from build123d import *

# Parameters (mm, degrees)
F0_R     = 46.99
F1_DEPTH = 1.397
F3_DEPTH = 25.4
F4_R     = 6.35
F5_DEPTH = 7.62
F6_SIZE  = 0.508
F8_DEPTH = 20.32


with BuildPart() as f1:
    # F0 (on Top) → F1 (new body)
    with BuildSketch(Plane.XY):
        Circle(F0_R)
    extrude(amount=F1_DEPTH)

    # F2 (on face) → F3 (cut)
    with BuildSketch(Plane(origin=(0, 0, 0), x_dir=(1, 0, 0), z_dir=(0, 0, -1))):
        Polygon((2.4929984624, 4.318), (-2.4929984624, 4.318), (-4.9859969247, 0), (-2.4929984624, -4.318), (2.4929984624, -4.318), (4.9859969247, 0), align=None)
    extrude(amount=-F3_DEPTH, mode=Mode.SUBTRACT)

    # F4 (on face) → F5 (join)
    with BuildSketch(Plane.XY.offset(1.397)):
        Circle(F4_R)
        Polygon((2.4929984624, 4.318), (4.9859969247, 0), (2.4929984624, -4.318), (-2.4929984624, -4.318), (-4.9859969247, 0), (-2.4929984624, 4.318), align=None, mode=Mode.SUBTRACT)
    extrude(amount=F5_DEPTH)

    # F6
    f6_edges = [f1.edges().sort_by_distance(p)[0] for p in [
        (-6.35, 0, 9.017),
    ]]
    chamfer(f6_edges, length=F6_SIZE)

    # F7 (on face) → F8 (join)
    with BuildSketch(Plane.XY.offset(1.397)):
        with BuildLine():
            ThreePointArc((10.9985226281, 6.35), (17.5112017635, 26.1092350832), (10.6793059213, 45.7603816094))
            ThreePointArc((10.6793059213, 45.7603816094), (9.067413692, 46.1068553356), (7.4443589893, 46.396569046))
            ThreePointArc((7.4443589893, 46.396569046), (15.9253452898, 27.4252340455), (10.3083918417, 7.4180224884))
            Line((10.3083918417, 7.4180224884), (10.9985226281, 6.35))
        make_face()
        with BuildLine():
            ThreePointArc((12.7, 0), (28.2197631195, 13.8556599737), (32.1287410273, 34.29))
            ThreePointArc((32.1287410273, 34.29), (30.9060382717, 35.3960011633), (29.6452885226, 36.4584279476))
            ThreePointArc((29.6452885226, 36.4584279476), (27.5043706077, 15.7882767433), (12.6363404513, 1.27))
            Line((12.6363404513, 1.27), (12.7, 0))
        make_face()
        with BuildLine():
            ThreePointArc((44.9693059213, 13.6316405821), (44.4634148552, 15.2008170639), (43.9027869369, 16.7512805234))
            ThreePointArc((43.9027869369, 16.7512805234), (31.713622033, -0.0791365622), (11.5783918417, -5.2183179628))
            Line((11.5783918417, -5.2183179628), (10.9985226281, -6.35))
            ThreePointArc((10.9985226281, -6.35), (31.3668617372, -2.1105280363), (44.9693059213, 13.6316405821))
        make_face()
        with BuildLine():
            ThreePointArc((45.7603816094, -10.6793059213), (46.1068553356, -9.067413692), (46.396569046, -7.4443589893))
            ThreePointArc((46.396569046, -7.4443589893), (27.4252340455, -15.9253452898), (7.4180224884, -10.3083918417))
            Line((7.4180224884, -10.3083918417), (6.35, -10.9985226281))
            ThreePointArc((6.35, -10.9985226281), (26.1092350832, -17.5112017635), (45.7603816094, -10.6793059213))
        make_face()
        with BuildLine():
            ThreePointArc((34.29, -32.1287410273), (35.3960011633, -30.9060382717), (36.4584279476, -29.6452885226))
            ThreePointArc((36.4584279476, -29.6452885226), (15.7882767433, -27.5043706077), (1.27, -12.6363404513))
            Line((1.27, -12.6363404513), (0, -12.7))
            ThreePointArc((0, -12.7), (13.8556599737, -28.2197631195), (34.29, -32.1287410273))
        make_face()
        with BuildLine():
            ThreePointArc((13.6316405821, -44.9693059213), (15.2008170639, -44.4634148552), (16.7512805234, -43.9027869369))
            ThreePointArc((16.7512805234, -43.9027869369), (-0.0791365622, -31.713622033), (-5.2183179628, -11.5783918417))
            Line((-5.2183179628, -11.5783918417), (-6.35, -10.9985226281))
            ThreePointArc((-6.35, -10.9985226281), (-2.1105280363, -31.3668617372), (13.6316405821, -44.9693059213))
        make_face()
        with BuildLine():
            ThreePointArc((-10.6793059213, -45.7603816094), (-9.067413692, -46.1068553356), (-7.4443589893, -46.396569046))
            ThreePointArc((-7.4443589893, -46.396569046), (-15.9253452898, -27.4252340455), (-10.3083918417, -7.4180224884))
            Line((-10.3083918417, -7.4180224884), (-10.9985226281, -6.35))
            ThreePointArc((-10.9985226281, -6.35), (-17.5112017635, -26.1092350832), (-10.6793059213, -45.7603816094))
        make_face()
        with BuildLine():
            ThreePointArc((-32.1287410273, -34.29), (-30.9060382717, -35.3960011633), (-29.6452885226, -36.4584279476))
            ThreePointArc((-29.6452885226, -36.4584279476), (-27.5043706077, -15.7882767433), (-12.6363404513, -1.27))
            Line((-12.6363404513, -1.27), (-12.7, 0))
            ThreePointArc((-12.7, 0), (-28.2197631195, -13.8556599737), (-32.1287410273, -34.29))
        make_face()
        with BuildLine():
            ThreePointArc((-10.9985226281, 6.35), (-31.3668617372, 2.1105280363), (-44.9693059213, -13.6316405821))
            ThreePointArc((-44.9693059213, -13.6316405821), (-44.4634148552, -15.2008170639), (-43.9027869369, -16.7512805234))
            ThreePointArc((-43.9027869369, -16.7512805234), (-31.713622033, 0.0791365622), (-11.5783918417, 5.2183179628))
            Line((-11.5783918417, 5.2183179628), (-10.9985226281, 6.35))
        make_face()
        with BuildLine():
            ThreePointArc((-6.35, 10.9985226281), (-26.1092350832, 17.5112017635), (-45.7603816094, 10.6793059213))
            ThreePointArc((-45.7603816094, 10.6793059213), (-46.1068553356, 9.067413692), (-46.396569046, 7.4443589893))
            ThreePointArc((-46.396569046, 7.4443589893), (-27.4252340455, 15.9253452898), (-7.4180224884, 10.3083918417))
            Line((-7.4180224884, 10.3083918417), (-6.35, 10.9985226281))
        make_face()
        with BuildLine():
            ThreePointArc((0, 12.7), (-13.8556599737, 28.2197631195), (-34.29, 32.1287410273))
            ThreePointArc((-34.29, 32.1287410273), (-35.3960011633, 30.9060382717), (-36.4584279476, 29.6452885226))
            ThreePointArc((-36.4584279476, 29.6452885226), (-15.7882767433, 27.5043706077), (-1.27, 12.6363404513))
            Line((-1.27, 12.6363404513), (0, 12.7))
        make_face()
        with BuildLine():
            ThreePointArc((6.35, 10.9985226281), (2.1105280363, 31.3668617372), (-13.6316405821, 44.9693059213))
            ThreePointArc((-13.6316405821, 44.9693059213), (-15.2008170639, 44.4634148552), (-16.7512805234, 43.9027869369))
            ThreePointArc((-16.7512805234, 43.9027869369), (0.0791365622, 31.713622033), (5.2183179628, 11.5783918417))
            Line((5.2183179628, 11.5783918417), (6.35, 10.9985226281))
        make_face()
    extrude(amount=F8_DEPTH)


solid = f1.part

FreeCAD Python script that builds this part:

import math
import FreeCAD as App
import Part
import Sketcher
Q = App.Units.Quantity


def edges_at(feature, points):
    """Names of the edges that pass closest to the given points."""
    edges = feature.Shape.Edges
    near = lambda p: min(range(len(edges)), key=lambda i: edges[i].distToShape(Part.Vertex(*p))[0])
    return sorted({f"Edge{near(p) + 1}" for p in points})


def add_polygon(sketch, points):
    """Adds a closed chain of lines whose ends are joined by coincident constraints."""
    first, n = sketch.GeometryCount, len(points)
    for a, b in zip(points, points[1:] + points[:1]):
        sketch.addGeometry(Part.LineSegment(App.Vector(*a, 0), App.Vector(*b, 0)), False)
    for i in range(n):
        sketch.addConstraint(Sketcher.Constraint("Coincident", first + i, 2, first + (i + 1) % n, 1))

doc = App.newDocument("Part")
body = doc.addObject("PartDesign::Body", "Body")

sketch1 = body.newObject("Sketcher::SketchObject", "Sketch")
sketch1.AttachmentSupport = (doc.getObject("XY_Plane"), [""])
sketch1.MapMode = "FlatFace"
sketch1.addGeometry(Part.Circle(App.Vector(0, 0, 0), App.Vector(0, 0, 1), 46.99), False)
sketch1.addConstraint(Sketcher.Constraint("Coincident", 0, 3, -1, 1))
sketch1.addConstraint(Sketcher.Constraint("Diameter", 0, Q("3.7 in")))
pad1 = body.newObject("PartDesign::Pad", "Pad")
pad1.Profile = sketch1
pad1.Length = Q("0.055 in")

sketch2 = body.newObject("Sketcher::SketchObject", "Sketch001")
sketch2.AttachmentSupport = (doc.getObject("XY_Plane"), [""])
sketch2.MapMode = "FlatFace"
add_polygon(sketch2, [(2.492998, -4.318), (-2.492998, -4.318), (-4.985997, 0), (-2.492998, 4.318), (2.492998, 4.318), (4.985997, 0)])
sketch2.addConstraint(Sketcher.Constraint("Horizontal", 0))
sketch2.addConstraint(Sketcher.Constraint("Horizontal", 3))
sketch2.addConstraint(Sketcher.Constraint("Symmetric", 0, 2, 3, 2, -1, 1))
sketch2.addConstraint(Sketcher.Constraint("Symmetric", 1, 2, 4, 2, -1, 1))
sketch2.addConstraint(Sketcher.Constraint("PointOnObject", 1, 2, -1))
sketch2.addConstraint(Sketcher.Constraint("Parallel", 2, 5))
sketch2.addConstraint(Sketcher.Constraint("Vertical", 0, 2, 2, 2))
sketch2.addConstraint(Sketcher.Constraint("Angle", 1, Q("120 deg")))
sketch2.addConstraint(Sketcher.Constraint("DistanceY", 0, 2, -1, 1, Q("0.17 in")))
sketch2.addConstraint(Sketcher.Constraint("DistanceX", 0, 2, -1, 1, 2.492998))
pocket1 = body.newObject("PartDesign::Pocket", "Pocket")
pocket1.Profile = sketch2
pocket1.Length = Q("1 in")
pocket1.Reversed = True

sketch3 = body.newObject("Sketcher::SketchObject", "Sketch002")
sketch3.AttachmentSupport = (doc.getObject("XY_Plane"), [""])
sketch3.MapMode = "FlatFace"
sketch3.AttachmentOffset = App.Placement(App.Vector(0, 0, 0.055 * 25.4), App.Rotation())
sketch3.addGeometry(Part.Circle(App.Vector(0, 0, 0), App.Vector(0, 0, 1), 6.35), False)
add_polygon(sketch3, [(-2.492998, 4.318), (2.492998, 4.318), (4.985997, 0), (2.492998, -4.318), (-2.492998, -4.318), (-4.985997, 0)])
sketch3.addConstraint(Sketcher.Constraint("Horizontal", 1))
sketch3.addConstraint(Sketcher.Constraint("Horizontal", 4))
sketch3.addConstraint(Sketcher.Constraint("Coincident", 0, 3, -1, 1))
sketch3.addConstraint(Sketcher.Constraint("Symmetric", 1, 2, 4, 2, -1, 1))
sketch3.addConstraint(Sketcher.Constraint("Symmetric", 2, 2, 5, 2, -1, 1))
sketch3.addConstraint(Sketcher.Constraint("PointOnObject", 2, 2, -1))
sketch3.addConstraint(Sketcher.Constraint("Parallel", 3, 6))
sketch3.addConstraint(Sketcher.Constraint("Vertical", 1, 2, 3, 2))
sketch3.addConstraint(Sketcher.Constraint("Diameter", 0, Q("0.5 in")))
sketch3.addConstraint(Sketcher.Constraint("Angle", 2, Q("-60 deg")))
sketch3.addConstraint(Sketcher.Constraint("DistanceY", -1, 1, 1, 2, Q("0.17 in")))
sketch3.addConstraint(Sketcher.Constraint("DistanceX", -1, 1, 1, 2, 2.492998))
pad2 = body.newObject("PartDesign::Pad", "Pad001")
pad2.Profile = sketch3
pad2.Length = Q("0.3 in")
doc.recompute()

chamfer = body.newObject("PartDesign::Chamfer", "Chamfer")
chamfer.Base = (pad2, edges_at(pad2, [(-6.35, 0, 9.017)]))
chamfer.Size = Q("0.02 in")

sketch4 = body.newObject("Sketcher::SketchObject", "Sketch003")
sketch4.AttachmentSupport = (doc.getObject("XY_Plane"), [""])
sketch4.MapMode = "FlatFace"
sketch4.AttachmentOffset = App.Placement(App.Vector(0, 0, 0.055 * 25.4), App.Rotation())
sketch4.addGeometry(Part.ArcOfCircle(Part.Circle(App.Vector(-14.9225, 25.846528, 0), App.Vector(0, 0, 1), 32.434766), math.radians(-36.948699), math.radians(37.876849)), False)
sketch4.addGeometry(Part.ArcOfCircle(Part.Circle(App.Vector(0, 0, 0), App.Vector(0, 0, 1), 46.99), math.radians(76.863741), math.radians(80.88455)), False)
sketch4.addGeometry(Part.ArcOfCircle(Part.Circle(App.Vector(-14.5415, 25.186617, 0), App.Vector(0, 0, 1), 30.548978), math.radians(-35.566174), math.radians(43.970933)), False)
sketch4.addGeometry(Part.LineSegment(App.Vector(10.308392, 7.418022, 0), App.Vector(10.998523, 6.35, 0)), False)
sketch4.addGeometry(Part.ArcOfCircle(Part.Circle(App.Vector(0, 29.845, 0), App.Vector(0, 0, 1), 32.434766), math.radians(-66.948699), math.radians(7.876849)), False)
sketch4.addGeometry(Part.ArcOfCircle(Part.Circle(App.Vector(0, 0, 0), App.Vector(0, 0, 1), 46.99), math.radians(46.863741), math.radians(50.88455)), False)
sketch4.addGeometry(Part.ArcOfCircle(Part.Circle(App.Vector(0, 29.083, 0), App.Vector(0, 0, 1), 30.548978), math.radians(-65.566174), math.radians(13.970933)), False)
sketch4.addGeometry(Part.LineSegment(App.Vector(12.63634, 1.27, 0), App.Vector(12.7, 0, 0)), False)
sketch4.addGeometry(Part.ArcOfCircle(Part.Circle(App.Vector(0, 0, 0), App.Vector(0, 0, 1), 46.99), math.radians(16.863741), math.radians(20.88455)), False)
sketch4.addGeometry(Part.ArcOfCircle(Part.Circle(App.Vector(14.5415, 25.186617, 0), App.Vector(0, 0, 1), 30.548978), math.radians(-95.566174), math.radians(-16.029067)), False)
sketch4.addGeometry(Part.LineSegment(App.Vector(11.578392, -5.218318, 0), App.Vector(10.998523, -6.35, 0)), False)
sketch4.addGeometry(Part.ArcOfCircle(Part.Circle(App.Vector(14.9225, 25.846528, 0), App.Vector(0, 0, 1), 32.434766), math.radians(-96.948699), math.radians(-22.123151)), False)
sketch4.addGeometry(Part.ArcOfCircle(Part.Circle(App.Vector(0, 0, 0), App.Vector(0, 0, 1), 46.99), math.radians(-13.136259), math.radians(-9.11545)), False)
sketch4.addGeometry(Part.ArcOfCircle(Part.Circle(App.Vector(25.186617, 14.5415, 0), App.Vector(0, 0, 1), 30.548978), math.radians(-125.566174), math.radians(-46.029067)), False)
sketch4.addGeometry(Part.LineSegment(App.Vector(7.418022, -10.308392, 0), App.Vector(6.35, -10.998523, 0)), False)
sketch4.addGeometry(Part.ArcOfCircle(Part.Circle(App.Vector(25.846528, 14.9225, 0), App.Vector(0, 0, 1), 32.434766), math.radians(-126.948699), math.radians(-52.123151)), False)
sketch4.addGeometry(Part.ArcOfCircle(Part.Circle(App.Vector(0, 0, 0), App.Vector(0, 0, 1), 46.99), math.radians(-43.136259), math.radians(-39.11545)), False)
sketch4.addGeometry(Part.ArcOfCircle(Part.Circle(App.Vector(29.083, 0, 0), App.Vector(0, 0, 1), 30.548978), math.radians(-155.566174), math.radians(-76.029067)), False)
sketch4.addGeometry(Part.LineSegment(App.Vector(1.27, -12.63634, 0), App.Vector(0, -12.7, 0)), False)
sketch4.addGeometry(Part.ArcOfCircle(Part.Circle(App.Vector(29.845, 0, 0), App.Vector(0, 0, 1), 32.434766), math.radians(-156.948699), math.radians(-82.123151)), False)
sketch4.addGeometry(Part.ArcOfCircle(Part.Circle(App.Vector(0, 0, 0), App.Vector(0, 0, 1), 46.99), math.radians(-73.136259), math.radians(-69.11545)), False)
sketch4.addGeometry(Part.ArcOfCircle(Part.Circle(App.Vector(25.186617, -14.5415, 0), App.Vector(0, 0, 1), 30.548978), math.radians(174.433826), math.radians(253.970933)), False)
sketch4.addGeometry(Part.LineSegment(App.Vector(-5.218318, -11.578392, 0), App.Vector(-6.35, -10.998523, 0)), False)
sketch4.addGeometry(Part.ArcOfCircle(Part.Circle(App.Vector(25.846528, -14.9225, 0), App.Vector(0, 0, 1), 32.434766), math.radians(173.051301), math.radians(247.876849)), False)
sketch4.addGeometry(Part.ArcOfCircle(Part.Circle(App.Vector(0, 0, 0), App.Vector(0, 0, 1), 46.99), math.radians(-103.136259), math.radians(-99.11545)), False)
sketch4.addGeometry(Part.ArcOfCircle(Part.Circle(App.Vector(14.5415, -25.186617, 0), App.Vector(0, 0, 1), 30.548978), math.radians(144.433826), math.radians(223.970933)), False)
sketch4.addGeometry(Part.LineSegment(App.Vector(-10.308392, -7.418022, 0), App.Vector(-10.998523, -6.35, 0)), False)
sketch4.addGeometry(Part.ArcOfCircle(Part.Circle(App.Vector(14.9225, -25.846528, 0), App.Vector(0, 0, 1), 32.434766), math.radians(143.051301), math.radians(217.876849)), False)
sketch4.addGeometry(Part.ArcOfCircle(Part.Circle(App.Vector(0, 0, 0), App.Vector(0, 0, 1), 46.99), math.radians(-133.136259), math.radians(-129.11545)), False)
sketch4.addGeometry(Part.ArcOfCircle(Part.Circle(App.Vector(0, -29.083, 0), App.Vector(0, 0, 1), 30.548978), math.radians(114.433826), math.radians(193.970933)), False)
sketch4.addGeometry(Part.LineSegment(App.Vector(-12.63634, -1.27, 0), App.Vector(-12.7, 0, 0)), False)
sketch4.addGeometry(Part.ArcOfCircle(Part.Circle(App.Vector(0, -29.845, 0), App.Vector(0, 0, 1), 32.434766), math.radians(113.051301), math.radians(187.876849)), False)
sketch4.addGeometry(Part.ArcOfCircle(Part.Circle(App.Vector(-14.9225, -25.846528, 0), App.Vector(0, 0, 1), 32.434766), math.radians(83.051301), math.radians(157.876849)), False)
sketch4.addGeometry(Part.ArcOfCircle(Part.Circle(App.Vector(0, 0, 0), App.Vector(0, 0, 1), 46.99), math.radians(-163.136259), math.radians(-159.11545)), False)
sketch4.addGeometry(Part.ArcOfCircle(Part.Circle(App.Vector(-14.5415, -25.186617, 0), App.Vector(0, 0, 1), 30.548978), math.radians(84.433826), math.radians(163.970933)), False)
sketch4.addGeometry(Part.LineSegment(App.Vector(-11.578392, 5.218318, 0), App.Vector(-10.998523, 6.35, 0)), False)
sketch4.addGeometry(Part.ArcOfCircle(Part.Circle(App.Vector(-25.846528, -14.9225, 0), App.Vector(0, 0, 1), 32.434766), math.radians(53.051301), math.radians(127.876849)), False)
sketch4.addGeometry(Part.ArcOfCircle(Part.Circle(App.Vector(0, 0, 0), App.Vector(0, 0, 1), 46.99), math.radians(166.863741), math.radians(170.88455)), False)
sketch4.addGeometry(Part.ArcOfCircle(Part.Circle(App.Vector(-25.186617, -14.5415, 0), App.Vector(0, 0, 1), 30.548978), math.radians(54.433826), math.radians(133.970933)), False)
sketch4.addGeometry(Part.LineSegment(App.Vector(-7.418022, 10.308392, 0), App.Vector(-6.35, 10.998523, 0)), False)
sketch4.addGeometry(Part.ArcOfCircle(Part.Circle(App.Vector(-29.845, 0, 0), App.Vector(0, 0, 1), 32.434766), math.radians(23.051301), math.radians(97.876849)), False)
sketch4.addGeometry(Part.ArcOfCircle(Part.Circle(App.Vector(0, 0, 0), App.Vector(0, 0, 1), 46.99), math.radians(136.863741), math.radians(140.88455)), False)
sketch4.addGeometry(Part.ArcOfCircle(Part.Circle(App.Vector(-29.083, 0, 0), App.Vector(0, 0, 1), 30.548978), math.radians(24.433826), math.radians(103.970933)), False)
sketch4.addGeometry(Part.LineSegment(App.Vector(-1.27, 12.63634, 0), App.Vector(0, 12.7, 0)), False)
sketch4.addGeometry(Part.ArcOfCircle(Part.Circle(App.Vector(-25.846528, 14.9225, 0), App.Vector(0, 0, 1), 32.434766), math.radians(-6.948699), math.radians(67.876849)), False)
sketch4.addGeometry(Part.ArcOfCircle(Part.Circle(App.Vector(0, 0, 0), App.Vector(0, 0, 1), 46.99), math.radians(106.863741), math.radians(110.88455)), False)
sketch4.addGeometry(Part.ArcOfCircle(Part.Circle(App.Vector(-25.186617, 14.5415, 0), App.Vector(0, 0, 1), 30.548978), math.radians(-5.566174), math.radians(73.970933)), False)
sketch4.addGeometry(Part.LineSegment(App.Vector(5.218318, 11.578392, 0), App.Vector(6.35, 10.998523, 0)), False)
sketch4.addConstraint(Sketcher.Constraint("Coincident", 0, 2, 1, 1))
sketch4.addConstraint(Sketcher.Constraint("Coincident", 1, 2, 2, 2))
sketch4.addConstraint(Sketcher.Constraint("Coincident", 2, 1, 3, 1))
sketch4.addConstraint(Sketcher.Constraint("Coincident", 3, 2, 0, 1))
sketch4.addConstraint(Sketcher.Constraint("Coincident", 4, 2, 5, 1))
sketch4.addConstraint(Sketcher.Constraint("Coincident", 5, 2, 6, 2))
sketch4.addConstraint(Sketcher.Constraint("Coincident", 6, 1, 7, 1))
sketch4.addConstraint(Sketcher.Constraint("Coincident", 7, 2, 4, 1))
sketch4.addConstraint(Sketcher.Constraint("Coincident", 8, 2, 9, 2))
sketch4.addConstraint(Sketcher.Constraint("Coincident", 9, 1, 10, 1))
sketch4.addConstraint(Sketcher.Constraint("Coincident", 10, 2, 11, 1))
sketch4.addConstraint(Sketcher.Constraint("Coincident", 11, 2, 8, 1))
sketch4.addConstraint(Sketcher.Constraint("Coincident", 12, 2, 13, 2))
sketch4.addConstraint(Sketcher.Constraint("Coincident", 13, 1, 14, 1))
sketch4.addConstraint(Sketcher.Constraint("Coincident", 14, 2, 15, 1))
sketch4.addConstraint(Sketcher.Constraint("Coincident", 15, 2, 12, 1))
sketch4.addConstraint(Sketcher.Constraint("Coincident", 16, 2, 17, 2))
sketch4.addConstraint(Sketcher.Constraint("Coincident", 17, 1, 18, 1))
sketch4.addConstraint(Sketcher.Constraint("Coincident", 18, 2, 19, 1))
sketch4.addConstraint(Sketcher.Constraint("Coincident", 19, 2, 16, 1))
sketch4.addConstraint(Sketcher.Constraint("Coincident", 20, 2, 21, 2))
sketch4.addConstraint(Sketcher.Constraint("Coincident", 21, 1, 22, 1))
sketch4.addConstraint(Sketcher.Constraint("Coincident", 22, 2, 23, 1))
sketch4.addConstraint(Sketcher.Constraint("Coincident", 23, 2, 20, 1))
sketch4.addConstraint(Sketcher.Constraint("Coincident", 24, 2, 25, 2))
sketch4.addConstraint(Sketcher.Constraint("Coincident", 25, 1, 26, 1))
sketch4.addConstraint(Sketcher.Constraint("Coincident", 26, 2, 27, 1))
sketch4.addConstraint(Sketcher.Constraint("Coincident", 27, 2, 24, 1))
sketch4.addConstraint(Sketcher.Constraint("Coincident", 28, 2, 29, 2))
sketch4.addConstraint(Sketcher.Constraint("Coincident", 29, 1, 30, 1))
sketch4.addConstraint(Sketcher.Constraint("Coincident", 30, 2, 31, 1))
sketch4.addConstraint(Sketcher.Constraint("Coincident", 31, 2, 28, 1))
sketch4.addConstraint(Sketcher.Constraint("Coincident", 32, 2, 33, 1))
sketch4.addConstraint(Sketcher.Constraint("Coincident", 33, 2, 34, 2))
sketch4.addConstraint(Sketcher.Constraint("Coincident", 34, 1, 35, 1))
sketch4.addConstraint(Sketcher.Constraint("Coincident", 35, 2, 32, 1))
sketch4.addConstraint(Sketcher.Constraint("Coincident", 36, 2, 37, 1))
sketch4.addConstraint(Sketcher.Constraint("Coincident", 37, 2, 38, 2))
sketch4.addConstraint(Sketcher.Constraint("Coincident", 38, 1, 39, 1))
sketch4.addConstraint(Sketcher.Constraint("Coincident", 39, 2, 36, 1))
sketch4.addConstraint(Sketcher.Constraint("Coincident", 40, 2, 41, 1))
sketch4.addConstraint(Sketcher.Constraint("Coincident", 41, 2, 42, 2))
sketch4.addConstraint(Sketcher.Constraint("Coincident", 42, 1, 43, 1))
sketch4.addConstraint(Sketcher.Constraint("Coincident", 43, 2, 40, 1))
sketch4.addConstraint(Sketcher.Constraint("Coincident", 44, 2, 45, 1))
sketch4.addConstraint(Sketcher.Constraint("Coincident", 45, 2, 46, 2))
sketch4.addConstraint(Sketcher.Constraint("Coincident", 46, 1, 47, 1))
sketch4.addConstraint(Sketcher.Constraint("Coincident", 47, 2, 44, 1))
sketch4.addConstraint(Sketcher.Constraint("Coincident", 1, 3, -1, 1))
sketch4.addConstraint(Sketcher.Constraint("Coincident", 5, 3, -1, 1))
sketch4.addConstraint(Sketcher.Constraint("Coincident", 8, 3, -1, 1))
sketch4.addConstraint(Sketcher.Constraint("Coincident", 12, 3, -1, 1))
sketch4.addConstraint(Sketcher.Constraint("Coincident", 16, 3, -1, 1))
sketch4.addConstraint(Sketcher.Constraint("Coincident", 20, 3, -1, 1))
sketch4.addConstraint(Sketcher.Constraint("Coincident", 24, 3, -1, 1))
sketch4.addConstraint(Sketcher.Constraint("Coincident", 28, 3, -1, 1))
sketch4.addConstraint(Sketcher.Constraint("Coincident", 33, 3, -1, 1))
sketch4.addConstraint(Sketcher.Constraint("Coincident", 37, 3, -1, 1))
sketch4.addConstraint(Sketcher.Constraint("Coincident", 41, 3, -1, 1))
sketch4.addConstraint(Sketcher.Constraint("Coincident", 45, 3, -1, 1))
sketch4.addConstraint(Sketcher.Constraint("Equal", 0, 4))
sketch4.addConstraint(Sketcher.Constraint("Equal", 1, 5))
sketch4.addConstraint(Sketcher.Constraint("Equal", 2, 6))
sketch4.addConstraint(Sketcher.Constraint("Equal", 5, 8))
sketch4.addConstraint(Sketcher.Constraint("Equal", 6, 9))
sketch4.addConstraint(Sketcher.Constraint("Equal", 4, 11))
sketch4.addConstraint(Sketcher.Constraint("Equal", 8, 12))
sketch4.addConstraint(Sketcher.Constraint("Equal", 9, 13))
sketch4.addConstraint(Sketcher.Constraint("Equal", 11, 15))
sketch4.addConstraint(Sketcher.Constraint("Equal", 12, 16))
sketch4.addConstraint(Sketcher.Constraint("Equal", 13, 17))
sketch4.addConstraint(Sketcher.Constraint("Equal", 15, 19))
sketch4.addConstraint(Sketcher.Constraint("Equal", 16, 20))
sketch4.addConstraint(Sketcher.Constraint("Equal", 17, 21))
sketch4.addConstraint(Sketcher.Constraint("Equal", 19, 23))
sketch4.addConstraint(Sketcher.Constraint("Equal", 20, 24))
sketch4.addConstraint(Sketcher.Constraint("Equal", 21, 25))
sketch4.addConstraint(Sketcher.Constraint("Equal", 23, 27))
sketch4.addConstraint(Sketcher.Constraint("Equal", 24, 28))
sketch4.addConstraint(Sketcher.Constraint("Equal", 25, 29))
sketch4.addConstraint(Sketcher.Constraint("Equal", 27, 31))
sketch4.addConstraint(Sketcher.Constraint("Equal", 31, 32))
sketch4.addConstraint(Sketcher.Constraint("Equal", 28, 33))
sketch4.addConstraint(Sketcher.Constraint("Equal", 29, 34))
sketch4.addConstraint(Sketcher.Constraint("Equal", 32, 36))
sketch4.addConstraint(Sketcher.Constraint("Equal", 33, 37))
sketch4.addConstraint(Sketcher.Constraint("Equal", 34, 38))
sketch4.addConstraint(Sketcher.Constraint("Equal", 36, 40))
sketch4.addConstraint(Sketcher.Constraint("Equal", 37, 41))
sketch4.addConstraint(Sketcher.Constraint("Equal", 38, 42))
sketch4.addConstraint(Sketcher.Constraint("Equal", 40, 44))
sketch4.addConstraint(Sketcher.Constraint("Equal", 41, 45))
sketch4.addConstraint(Sketcher.Constraint("Equal", 42, 46))
sketch4.addConstraint(Sketcher.Constraint("Symmetric", 2, 3, 25, 3, -1, 1))
sketch4.addConstraint(Sketcher.Constraint("Symmetric", 0, 3, 27, 3, -1, 1))
sketch4.addConstraint(Sketcher.Constraint("Symmetric", 6, 3, 29, 3, -1, 1))
sketch4.addConstraint(Sketcher.Constraint("Symmetric", 4, 3, 31, 3, -1, 1))
sketch4.addConstraint(Sketcher.Constraint("Symmetric", 11, 3, 32, 3, -1, 1))
sketch4.addConstraint(Sketcher.Constraint("Symmetric", 9, 3, 34, 3, -1, 1))
sketch4.addConstraint(Sketcher.Constraint("Symmetric", 15, 3, 36, 3, -1, 1))
sketch4.addConstraint(Sketcher.Constraint("Symmetric", 13, 3, 38, 3, -1, 1))
sketch4.addConstraint(Sketcher.Constraint("Symmetric", 19, 3, 40, 3, -1, 1))
sketch4.addConstraint(Sketcher.Constraint("Symmetric", 17, 3, 42, 3, -1, 1))
sketch4.addConstraint(Sketcher.Constraint("Symmetric", 23, 3, 44, 3, -1, 1))
sketch4.addConstraint(Sketcher.Constraint("Symmetric", 21, 3, 46, 3, -1, 1))
sketch4.addConstraint(Sketcher.Constraint("Symmetric", 2, 3, 9, 3, -2))
sketch4.addConstraint(Sketcher.Constraint("Symmetric", 0, 3, 11, 3, -2))
sketch4.addConstraint(Sketcher.Constraint("Symmetric", 23, 3, 36, 3, -2))
sketch4.addConstraint(Sketcher.Constraint("Symmetric", 21, 3, 38, 3, -2))
sketch4.addConstraint(Sketcher.Constraint("Symmetric", 14, 2, 22, 2, -2))
sketch4.addConstraint(Sketcher.Constraint("Symmetric", 10, 2, 26, 2, -2))
sketch4.addConstraint(Sketcher.Constraint("Symmetric", 7, 2, 30, 2, -2))
sketch4.addConstraint(Sketcher.Constraint("Symmetric", 3, 2, 35, 2, -2))
sketch4.addConstraint(Sketcher.Constraint("Symmetric", 39, 2, 47, 2, -2))
sketch4.addConstraint(Sketcher.Constraint("Symmetric", 18, 2, 43, 2, -1))
sketch4.addConstraint(Sketcher.Constraint("PointOnObject", 4, 3, -2))
sketch4.addConstraint(Sketcher.Constraint("PointOnObject", 6, 3, -2))
sketch4.addConstraint(Sketcher.Constraint("PointOnObject", 17, 3, -1))
sketch4.addConstraint(Sketcher.Constraint("PointOnObject", 19, 3, -1))
sketch4.addConstraint(Sketcher.Constraint("Perpendicular", 3, 14))
sketch4.addConstraint(Sketcher.Constraint("Perpendicular", 7, 18))
sketch4.addConstraint(Sketcher.Constraint("Perpendicular", 10, 22))
sketch4.addConstraint(Sketcher.Constraint("Perpendicular", 14, 26))
sketch4.addConstraint(Sketcher.Constraint("Perpendicular", 18, 30))
sketch4.addConstraint(Sketcher.Constraint("Perpendicular", 22, 35))
sketch4.addConstraint(Sketcher.Constraint("Perpendicular", 26, 39))
sketch4.addConstraint(Sketcher.Constraint("Perpendicular", 30, 43))
sketch4.addConstraint(Sketcher.Constraint("Perpendicular", 35, 47))
sketch4.addConstraint(Sketcher.Constraint("Equal", 3, 7))
sketch4.addConstraint(Sketcher.Constraint("Equal", 7, 10))
sketch4.addConstraint(Sketcher.Constraint("Equal", 10, 14))
sketch4.addConstraint(Sketcher.Constraint("Equal", 14, 18))
sketch4.addConstraint(Sketcher.Constraint("Equal", 18, 22))
sketch4.addConstraint(Sketcher.Constraint("Radius", 1, Q("1.85 in")))
sketch4.addConstraint(Sketcher.Constraint("DistanceX", -1, 1, 7, 2, Q("0.5 in")))
sketch4.addConstraint(Sketcher.Constraint("DistanceY", 18, 2, -1, 1, Q("0.5 in")))
sketch4.addConstraint(Sketcher.Constraint("DistanceY", -1, 1, 3, 2, Q("0.25 in")))
sketch4.addConstraint(Sketcher.Constraint("DistanceY", -1, 1, 4, 2, Q("1.35 in")))
sketch4.addConstraint(Sketcher.Constraint("DistanceY", -1, 1, 6, 1, Q("0.05 in")))
sketch4.addConstraint(Sketcher.Constraint("DistanceX", -1, 1, 14, 2, Q("0.25 in")))
sketch4.addConstraint(Sketcher.Constraint("DistanceY", -1, 1, 6, 3, Q("1.145 in")))
sketch4.addConstraint(Sketcher.Constraint("Radius", 2, 30.548978))
sketch4.addConstraint(Sketcher.Constraint("DistanceX", 0, 3, -1, 1, Q("0.5875 in")))
sketch4.addConstraint(Sketcher.Constraint("DistanceX", 2, 3, -1, 1, Q("0.5725 in")))
sketch4.addConstraint(Sketcher.Constraint("DistanceY", -1, 1, 13, 3, Q("0.5725 in")))
sketch4.addConstraint(Sketcher.Constraint("DistanceX", -1, 1, 1, 2, 7.444359))
pad3 = body.newObject("PartDesign::Pad", "Pad002")
pad3.Profile = sketch4
pad3.Length = Q("0.8 in")

doc.recompute()
